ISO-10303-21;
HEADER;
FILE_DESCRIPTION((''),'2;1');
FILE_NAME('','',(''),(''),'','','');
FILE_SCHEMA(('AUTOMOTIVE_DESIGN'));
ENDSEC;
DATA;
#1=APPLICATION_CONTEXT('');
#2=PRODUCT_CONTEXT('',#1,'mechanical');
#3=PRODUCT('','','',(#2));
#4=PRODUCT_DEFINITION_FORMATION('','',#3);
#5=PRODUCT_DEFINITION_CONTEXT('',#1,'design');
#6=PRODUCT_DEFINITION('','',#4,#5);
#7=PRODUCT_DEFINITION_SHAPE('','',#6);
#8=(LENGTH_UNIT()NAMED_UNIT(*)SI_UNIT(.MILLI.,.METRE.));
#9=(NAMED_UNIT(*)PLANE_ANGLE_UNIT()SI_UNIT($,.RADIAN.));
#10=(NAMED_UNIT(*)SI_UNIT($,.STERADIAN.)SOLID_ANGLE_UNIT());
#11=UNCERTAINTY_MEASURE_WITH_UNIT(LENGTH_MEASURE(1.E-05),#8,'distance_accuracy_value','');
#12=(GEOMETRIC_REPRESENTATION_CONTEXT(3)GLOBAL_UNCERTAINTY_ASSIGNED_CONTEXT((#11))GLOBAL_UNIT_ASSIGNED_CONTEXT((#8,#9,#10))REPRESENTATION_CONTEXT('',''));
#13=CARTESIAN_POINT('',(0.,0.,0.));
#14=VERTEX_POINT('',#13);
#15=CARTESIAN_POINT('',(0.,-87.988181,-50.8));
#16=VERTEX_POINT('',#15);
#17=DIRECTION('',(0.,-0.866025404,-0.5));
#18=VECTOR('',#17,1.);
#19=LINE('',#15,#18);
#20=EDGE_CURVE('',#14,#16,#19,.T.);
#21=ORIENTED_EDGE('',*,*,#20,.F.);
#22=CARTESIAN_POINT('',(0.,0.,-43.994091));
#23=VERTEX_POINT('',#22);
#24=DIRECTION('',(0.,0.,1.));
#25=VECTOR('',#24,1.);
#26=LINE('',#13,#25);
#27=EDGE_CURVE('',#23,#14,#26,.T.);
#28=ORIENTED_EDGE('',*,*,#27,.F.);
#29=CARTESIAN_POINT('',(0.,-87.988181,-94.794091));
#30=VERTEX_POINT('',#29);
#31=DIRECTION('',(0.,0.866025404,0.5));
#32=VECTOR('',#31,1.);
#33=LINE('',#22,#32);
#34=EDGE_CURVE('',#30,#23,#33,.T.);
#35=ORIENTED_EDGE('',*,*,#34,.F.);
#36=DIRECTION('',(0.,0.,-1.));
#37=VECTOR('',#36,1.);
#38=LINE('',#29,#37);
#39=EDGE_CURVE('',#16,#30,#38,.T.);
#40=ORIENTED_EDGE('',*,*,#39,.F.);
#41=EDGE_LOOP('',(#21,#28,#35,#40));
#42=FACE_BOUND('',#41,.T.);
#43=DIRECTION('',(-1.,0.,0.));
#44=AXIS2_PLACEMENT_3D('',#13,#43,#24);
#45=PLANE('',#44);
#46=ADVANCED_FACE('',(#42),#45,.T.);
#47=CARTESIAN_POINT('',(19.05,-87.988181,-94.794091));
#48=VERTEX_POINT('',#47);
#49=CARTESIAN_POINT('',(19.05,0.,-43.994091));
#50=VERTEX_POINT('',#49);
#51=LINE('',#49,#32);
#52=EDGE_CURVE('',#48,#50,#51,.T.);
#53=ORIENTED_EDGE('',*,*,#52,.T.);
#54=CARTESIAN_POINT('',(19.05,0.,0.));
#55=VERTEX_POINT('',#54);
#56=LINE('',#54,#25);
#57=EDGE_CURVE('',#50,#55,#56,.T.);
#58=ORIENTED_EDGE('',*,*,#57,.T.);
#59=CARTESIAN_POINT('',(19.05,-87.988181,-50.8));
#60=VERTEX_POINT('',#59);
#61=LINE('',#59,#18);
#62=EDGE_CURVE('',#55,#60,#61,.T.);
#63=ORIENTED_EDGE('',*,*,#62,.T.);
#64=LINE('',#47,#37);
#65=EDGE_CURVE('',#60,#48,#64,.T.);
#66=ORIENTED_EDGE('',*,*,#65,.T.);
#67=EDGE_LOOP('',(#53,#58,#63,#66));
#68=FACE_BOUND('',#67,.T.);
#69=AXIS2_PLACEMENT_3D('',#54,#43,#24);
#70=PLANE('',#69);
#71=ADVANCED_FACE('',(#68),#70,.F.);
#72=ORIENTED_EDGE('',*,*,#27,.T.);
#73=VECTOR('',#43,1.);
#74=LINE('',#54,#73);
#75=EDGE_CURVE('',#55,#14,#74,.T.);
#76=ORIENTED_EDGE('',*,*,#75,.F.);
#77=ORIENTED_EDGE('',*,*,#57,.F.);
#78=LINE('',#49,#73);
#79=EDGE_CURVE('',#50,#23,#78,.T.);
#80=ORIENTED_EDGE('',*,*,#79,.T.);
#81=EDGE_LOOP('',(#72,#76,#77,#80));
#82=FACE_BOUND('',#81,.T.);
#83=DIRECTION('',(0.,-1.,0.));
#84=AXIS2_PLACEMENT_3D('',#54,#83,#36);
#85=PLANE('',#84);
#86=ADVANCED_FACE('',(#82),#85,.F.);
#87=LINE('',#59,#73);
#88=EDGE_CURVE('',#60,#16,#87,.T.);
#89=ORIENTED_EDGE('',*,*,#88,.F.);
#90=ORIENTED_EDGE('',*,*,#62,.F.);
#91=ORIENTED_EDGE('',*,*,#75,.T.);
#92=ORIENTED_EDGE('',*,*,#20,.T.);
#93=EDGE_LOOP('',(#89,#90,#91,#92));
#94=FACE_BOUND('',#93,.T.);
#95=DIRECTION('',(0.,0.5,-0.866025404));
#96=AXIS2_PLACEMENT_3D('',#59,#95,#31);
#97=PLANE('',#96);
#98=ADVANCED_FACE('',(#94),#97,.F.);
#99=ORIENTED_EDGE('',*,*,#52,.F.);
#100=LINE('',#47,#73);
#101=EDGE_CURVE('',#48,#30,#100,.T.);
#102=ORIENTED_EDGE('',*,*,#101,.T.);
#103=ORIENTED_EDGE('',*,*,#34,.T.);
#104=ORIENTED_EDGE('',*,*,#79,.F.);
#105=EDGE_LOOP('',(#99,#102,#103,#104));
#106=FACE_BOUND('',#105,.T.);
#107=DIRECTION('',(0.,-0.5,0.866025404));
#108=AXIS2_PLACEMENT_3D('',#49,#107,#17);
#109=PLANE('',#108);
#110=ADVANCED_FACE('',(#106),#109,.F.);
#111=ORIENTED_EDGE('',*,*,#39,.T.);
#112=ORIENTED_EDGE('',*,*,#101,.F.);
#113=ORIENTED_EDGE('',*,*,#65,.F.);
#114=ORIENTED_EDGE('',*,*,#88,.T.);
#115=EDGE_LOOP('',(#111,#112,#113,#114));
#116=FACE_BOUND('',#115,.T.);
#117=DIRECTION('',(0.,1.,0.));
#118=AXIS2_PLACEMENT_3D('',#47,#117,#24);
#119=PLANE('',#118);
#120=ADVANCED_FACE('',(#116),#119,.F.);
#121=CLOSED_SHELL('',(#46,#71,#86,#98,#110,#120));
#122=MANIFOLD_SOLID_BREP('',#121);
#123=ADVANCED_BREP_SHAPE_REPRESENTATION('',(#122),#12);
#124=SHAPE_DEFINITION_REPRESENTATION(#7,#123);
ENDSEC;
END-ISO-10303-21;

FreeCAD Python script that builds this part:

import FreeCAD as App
import Part
import Sketcher

V = App.Vector
Q = App.Units.Quantity


def add_polygon(sketch, points):
    """Adds a closed chain of lines whose ends are joined by coincident constraints."""
    first, n = sketch.GeometryCount, len(points)
    for a, b in zip(points, points[1:] + points[:1]):
        sketch.addGeometry(Part.LineSegment(App.Vector(*a, 0), App.Vector(*b, 0)), False)
    for i in range(n):
        sketch.addConstraint(Sketcher.Constraint("Coincident", first + i, 2, first + (i + 1) % n, 1))

doc = App.newDocument("Part")
body = doc.addObject("PartDesign::Body", "Body")

sketch1 = body.newObject("Sketcher::SketchObject", "Sketch")
sketch1.AttachmentSupport = (doc.getObject("YZ_Plane"), [""])
sketch1.MapMode = "FlatFace"
add_polygon(sketch1, [(0, -43.994091), (0, 0), (-87.988181, -50.8), (-87.988181, -94.794091)])
sketch1.addConstraint(Sketcher.Constraint("Vertical", 0))
sketch1.addConstraint(Sketcher.Constraint("Vertical", 2))
sketch1.addConstraint(Sketcher.Constraint("Coincident", 0, 2, -1, 1))
sketch1.addConstraint(Sketcher.Constraint("Parallel", 1, 3))
sketch1.addConstraint(Sketcher.Constraint("Distance", 1, Q("4 in")))
sketch1.addConstraint(Sketcher.Constraint("DistanceY", 1, 2, -1, 1, Q("2 in")))
sketch1.addConstraint(Sketcher.Constraint("DistanceY", 0, 1, 0, 2, Q("43.994091 mm")))
pad1 = body.newObject("PartDesign::Pad", "Pad")
pad1.Profile = sketch1
pad1.Length = Q("0.75 in")

doc.recompute()
